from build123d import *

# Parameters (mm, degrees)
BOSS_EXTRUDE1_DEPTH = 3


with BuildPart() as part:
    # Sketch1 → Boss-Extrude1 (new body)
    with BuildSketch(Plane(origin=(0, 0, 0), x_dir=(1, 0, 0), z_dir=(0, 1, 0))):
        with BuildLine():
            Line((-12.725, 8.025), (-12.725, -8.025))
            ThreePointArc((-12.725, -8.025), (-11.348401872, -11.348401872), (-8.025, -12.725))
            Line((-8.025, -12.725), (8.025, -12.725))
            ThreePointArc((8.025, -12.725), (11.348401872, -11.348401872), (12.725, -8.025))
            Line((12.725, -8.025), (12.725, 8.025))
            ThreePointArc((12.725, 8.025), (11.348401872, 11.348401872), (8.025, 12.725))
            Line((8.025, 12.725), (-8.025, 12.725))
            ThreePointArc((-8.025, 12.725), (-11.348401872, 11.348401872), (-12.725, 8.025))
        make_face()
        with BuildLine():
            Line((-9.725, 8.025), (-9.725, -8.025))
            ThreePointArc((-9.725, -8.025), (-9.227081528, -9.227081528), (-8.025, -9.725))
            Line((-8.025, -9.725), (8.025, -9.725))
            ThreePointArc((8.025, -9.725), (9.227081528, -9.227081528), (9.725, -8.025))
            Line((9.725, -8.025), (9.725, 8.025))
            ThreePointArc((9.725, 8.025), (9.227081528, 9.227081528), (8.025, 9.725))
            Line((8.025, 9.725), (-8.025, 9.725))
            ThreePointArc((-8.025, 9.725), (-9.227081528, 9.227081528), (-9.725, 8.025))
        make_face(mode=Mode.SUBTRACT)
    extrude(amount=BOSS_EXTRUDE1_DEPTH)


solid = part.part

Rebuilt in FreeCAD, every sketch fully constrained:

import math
import FreeCAD as App
import Part
import Sketcher
from FreeCAD import Vector
Q = App.Units.Quantity

doc = App.newDocument("Part")
body = doc.addObject("PartDesign::Body", "Body")

# Sketch on XZ plane
sketch1 = body.newObject("Sketcher::SketchObject", "Sketch")
sketch1.AttachmentSupport = (doc.getObject("XZ_Plane"), [""])
sketch1.MapMode = "FlatFace"
sketch1.addGeometry(Part.LineSegment(Vector(-12.7, -8, 0), Vector(-12.7, 8, 0)), False)
sketch1.addGeometry(Part.ArcOfCircle(Part.Circle(Vector(-8, 8, 0), Vector(0, 0, 1), 4.7), math.radians(90), math.radians(180)), False)
sketch1.addGeometry(Part.LineSegment(Vector(-8, 12.7, 0), Vector(8, 12.7, 0)), False)
sketch1.addGeometry(Part.ArcOfCircle(Part.Circle(Vector(8, 8, 0), Vector(0, 0, 1), 4.7), math.radians(0), math.radians(90)), False)
sketch1.addGeometry(Part.LineSegment(Vector(12.7, 8, 0), Vector(12.7, -8, 0)), False)
sketch1.addGeometry(Part.ArcOfCircle(Part.Circle(Vector(8, -8, 0), Vector(0, 0, 1), 4.7), math.radians(-90), math.radians(0)), False)
sketch1.addGeometry(Part.LineSegment(Vector(8, -12.7, 0), Vector(-8, -12.7, 0)), False)
sketch1.addGeometry(Part.ArcOfCircle(Part.Circle(Vector(-8, -8, 0), Vector(0, 0, 1), 4.7), math.radians(180), math.radians(270)), False)
sketch1.addGeometry(Part.LineSegment(Vector(-9.7, 8, 0), Vector(-9.7, -8, 0)), False)
sketch1.addGeometry(Part.ArcOfCircle(Part.Circle(Vector(-8, -8, 0), Vector(0, 0, 1), 1.7), math.radians(180), math.radians(270)), False)
sketch1.addGeometry(Part.LineSegment(Vector(-8, -9.7, 0), Vector(8, -9.7, 0)), False)
sketch1.addGeometry(Part.ArcOfCircle(Part.Circle(Vector(8, -8, 0), Vector(0, 0, 1), 1.7), math.radians(-90), math.radians(0)), False)
sketch1.addGeometry(Part.LineSegment(Vector(9.7, -8, 0), Vector(9.7, 8, 0)), False)
sketch1.addGeometry(Part.ArcOfCircle(Part.Circle(Vector(8, 8, 0), Vector(0, 0, 1), 1.7), math.radians(0), math.radians(90)), False)
sketch1.addGeometry(Part.LineSegment(Vector(8, 9.7, 0), Vector(-8, 9.7, 0)), False)
sketch1.addGeometry(Part.ArcOfCircle(Part.Circle(Vector(-8, 8, 0), Vector(0, 0, 1), 1.7), math.radians(90), math.radians(180)), False)
sketch1.addConstraint(Sketcher.Constraint("Tangent", 0, 2, 1, 2))
sketch1.addConstraint(Sketcher.Constraint("Tangent", 1, 1, 2, 1))
sketch1.addConstraint(Sketcher.Constraint("Tangent", 2, 2, 3, 2))
sketch1.addConstraint(Sketcher.Constraint("Tangent", 3, 1, 4, 1))
sketch1.addConstraint(Sketcher.Constraint("Tangent", 4, 2, 5, 2))
sketch1.addConstraint(Sketcher.Constraint("Tangent", 5, 1, 6, 1))
sketch1.addConstraint(Sketcher.Constraint("Tangent", 6, 2, 7, 2))
sketch1.addConstraint(Sketcher.Constraint("Tangent", 7, 1, 0, 1))
sketch1.addConstraint(Sketcher.Constraint("Tangent", 8, 2, 9, 1))
sketch1.addConstraint(Sketcher.Constraint("Tangent", 9, 2, 10, 1))
sketch1.addConstraint(Sketcher.Constraint("Tangent", 10, 2, 11, 1))
sketch1.addConstraint(Sketcher.Constraint("Tangent", 11, 2, 12, 1))
sketch1.addConstraint(Sketcher.Constraint("Tangent", 12, 2, 13, 1))
sketch1.addConstraint(Sketcher.Constraint("Tangent", 13, 2, 14, 1))
sketch1.addConstraint(Sketcher.Constraint("Tangent", 14, 2, 15, 1))
sketch1.addConstraint(Sketcher.Constraint("Tangent", 15, 2, 8, 1))
sketch1.addConstraint(Sketcher.Constraint("Vertical", 0))
sketch1.addConstraint(Sketcher.Constraint("Horizontal", 2))
sketch1.addConstraint(Sketcher.Constraint("Vertical", 4))
sketch1.addConstraint(Sketcher.Constraint("Horizontal", 6))
sketch1.addConstraint(Sketcher.Constraint("Vertical", 8))
sketch1.addConstraint(Sketcher.Constraint("Horizontal", 10))
sketch1.addConstraint(Sketcher.Constraint("Vertical", 12))
sketch1.addConstraint(Sketcher.Constraint("Horizontal", 14))
sketch1.addConstraint(Sketcher.Constraint("Coincident", 9, 3, 7, 3))
sketch1.addConstraint(Sketcher.Constraint("Coincident", 11, 3, 5, 3))
sketch1.addConstraint(Sketcher.Constraint("Coincident", 13, 3, 3, 3))
sketch1.addConstraint(Sketcher.Constraint("Equal", 1, 3))
sketch1.addConstraint(Sketcher.Constraint("Equal", 3, 5))
sketch1.addConstraint(Sketcher.Constraint("Equal", 5, 7))
sketch1.addConstraint(Sketcher.Constraint("Equal", 13, 15))
sketch1.addConstraint(Sketcher.Constraint("Symmetric", 1, 3, 5, 3, -1, 1))
sketch1.addConstraint(Sketcher.Constraint("Equal", 14, 0))
sketch1.addConstraint(Sketcher.Constraint("Radius", 1, Q("4.7 mm")))
sketch1.addConstraint(Sketcher.Constraint("Radius", 9, Q("1.7 mm")))
sketch1.addConstraint(Sketcher.Constraint("DistanceX", 2, 1, 2, 2, Q("16.05 mm")))
pad1 = body.newObject("PartDesign::Pad", "Pad")
pad1.Profile = sketch1
pad1.Length = 3
pad1.Reversed = True

doc.recompute()
